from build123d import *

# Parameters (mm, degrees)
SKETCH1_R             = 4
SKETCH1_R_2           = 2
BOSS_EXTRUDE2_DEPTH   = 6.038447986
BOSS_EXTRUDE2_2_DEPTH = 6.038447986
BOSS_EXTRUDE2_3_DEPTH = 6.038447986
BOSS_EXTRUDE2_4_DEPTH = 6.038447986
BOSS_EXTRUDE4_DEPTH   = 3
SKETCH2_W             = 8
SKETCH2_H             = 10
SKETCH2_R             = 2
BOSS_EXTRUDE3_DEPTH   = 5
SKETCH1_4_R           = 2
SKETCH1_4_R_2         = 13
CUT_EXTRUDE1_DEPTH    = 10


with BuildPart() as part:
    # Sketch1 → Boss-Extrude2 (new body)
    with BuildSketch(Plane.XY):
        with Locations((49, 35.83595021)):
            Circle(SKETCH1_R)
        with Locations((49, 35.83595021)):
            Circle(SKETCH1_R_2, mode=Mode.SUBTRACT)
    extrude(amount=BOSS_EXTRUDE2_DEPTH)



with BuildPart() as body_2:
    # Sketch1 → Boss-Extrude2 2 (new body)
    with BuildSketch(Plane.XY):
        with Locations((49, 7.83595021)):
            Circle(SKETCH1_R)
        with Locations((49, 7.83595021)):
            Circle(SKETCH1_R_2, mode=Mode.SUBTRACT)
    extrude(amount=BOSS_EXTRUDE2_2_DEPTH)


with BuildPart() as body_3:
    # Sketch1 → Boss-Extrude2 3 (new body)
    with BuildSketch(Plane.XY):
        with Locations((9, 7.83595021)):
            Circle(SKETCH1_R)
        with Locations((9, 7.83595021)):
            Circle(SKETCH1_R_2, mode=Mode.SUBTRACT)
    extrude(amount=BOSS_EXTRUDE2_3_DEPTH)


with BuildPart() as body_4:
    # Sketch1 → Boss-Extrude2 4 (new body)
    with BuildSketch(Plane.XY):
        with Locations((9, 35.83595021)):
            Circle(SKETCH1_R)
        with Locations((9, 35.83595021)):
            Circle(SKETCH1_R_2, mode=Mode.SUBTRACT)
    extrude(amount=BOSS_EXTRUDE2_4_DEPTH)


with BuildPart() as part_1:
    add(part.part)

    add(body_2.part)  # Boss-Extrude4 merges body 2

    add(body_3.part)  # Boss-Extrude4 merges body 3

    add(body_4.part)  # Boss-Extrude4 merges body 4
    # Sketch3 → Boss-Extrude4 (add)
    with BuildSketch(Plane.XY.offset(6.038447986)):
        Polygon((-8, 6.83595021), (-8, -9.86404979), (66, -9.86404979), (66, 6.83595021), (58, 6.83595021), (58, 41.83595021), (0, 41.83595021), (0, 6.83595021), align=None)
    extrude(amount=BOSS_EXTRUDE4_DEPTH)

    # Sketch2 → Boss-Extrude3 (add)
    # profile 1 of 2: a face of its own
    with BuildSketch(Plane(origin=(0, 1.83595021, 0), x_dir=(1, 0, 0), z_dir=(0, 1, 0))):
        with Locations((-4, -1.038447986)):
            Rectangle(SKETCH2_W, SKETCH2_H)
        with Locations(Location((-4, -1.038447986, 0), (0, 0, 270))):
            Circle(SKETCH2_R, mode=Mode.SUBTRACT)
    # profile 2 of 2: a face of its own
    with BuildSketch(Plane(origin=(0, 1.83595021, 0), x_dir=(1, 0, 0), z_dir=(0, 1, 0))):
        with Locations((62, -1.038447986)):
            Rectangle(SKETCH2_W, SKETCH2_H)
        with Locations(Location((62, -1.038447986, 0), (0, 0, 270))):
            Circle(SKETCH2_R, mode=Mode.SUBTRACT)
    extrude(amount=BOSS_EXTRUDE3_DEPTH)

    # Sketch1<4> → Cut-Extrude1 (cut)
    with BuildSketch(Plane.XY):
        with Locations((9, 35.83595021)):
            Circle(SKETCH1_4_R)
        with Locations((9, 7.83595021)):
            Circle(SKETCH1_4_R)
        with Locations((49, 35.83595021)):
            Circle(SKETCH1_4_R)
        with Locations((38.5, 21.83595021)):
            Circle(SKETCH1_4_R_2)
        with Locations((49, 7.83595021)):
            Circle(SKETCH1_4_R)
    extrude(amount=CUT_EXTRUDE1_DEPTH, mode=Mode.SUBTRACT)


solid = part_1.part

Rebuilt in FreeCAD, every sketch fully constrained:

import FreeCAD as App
import Part
import Sketcher

V = App.Vector

doc = App.newDocument("Part")
body = doc.addObject("PartDesign::Body", "Body")

# Sketch on XY plane
sketch1 = body.newObject("Sketcher::SketchObject", "Sketch")
sketch1.AttachmentSupport = (doc.getObject("XY_Plane"), [""])
sketch1.MapMode = "FlatFace"
sketch1.addGeometry(Part.Circle(V(49, 35.8, 0), V(0, 0, 1), 4), False)
sketch1.addGeometry(Part.Circle(V(49, 35.8, 0), V(0, 0, 1), 2), False)
sketch1.addConstraint(Sketcher.Constraint("Coincident", 1, 3, 0, 3))
sketch1.addConstraint(Sketcher.Constraint("Diameter", 0, 8.0))
sketch1.addConstraint(Sketcher.Constraint("Diameter", 1, 4.0))
sketch1.addConstraint(Sketcher.Constraint("DistanceX", -1, 1, 0, 3, 49.0))
sketch1.addConstraint(Sketcher.Constraint("DistanceY", -1, 1, 0, 3, 35.83595))
pad1 = body.newObject("PartDesign::Pad", "Pad")
pad1.Profile = sketch1
pad1.Length = 6.038448
body2 = doc.addObject("PartDesign::Body", "Body001")

# Sketch on XY plane
sketch2 = body2.newObject("Sketcher::SketchObject", "Sketch001")
sketch2.AttachmentSupport = (doc.getObject("XY_Plane001"), [""])
sketch2.MapMode = "FlatFace"
sketch2.addGeometry(Part.Circle(V(49, 7.8, 0), V(0, 0, 1), 4), False)
sketch2.addGeometry(Part.Circle(V(49, 7.8, 0), V(0, 0, 1), 2), False)
sketch2.addConstraint(Sketcher.Constraint("Coincident", 1, 3, 0, 3))
sketch2.addConstraint(Sketcher.Constraint("Diameter", 0, 8.0))
sketch2.addConstraint(Sketcher.Constraint("Diameter", 1, 4.0))
sketch2.addConstraint(Sketcher.Constraint("DistanceX", -1, 1, 0, 3, 49.0))
sketch2.addConstraint(Sketcher.Constraint("DistanceY", -1, 1, 0, 3, 7.83595))
pad2 = body2.newObject("PartDesign::Pad", "Pad001")
pad2.Profile = sketch2
pad2.Length = 6.038448
body3 = doc.addObject("PartDesign::Body", "Body002")

# Sketch on XY plane
sketch3 = body3.newObject("Sketcher::SketchObject", "Sketch002")
sketch3.AttachmentSupport = (doc.getObject("XY_Plane002"), [""])
sketch3.MapMode = "FlatFace"
sketch3.addGeometry(Part.Circle(V(9, 7.8, 0), V(0, 0, 1), 4), False)
sketch3.addGeometry(Part.Circle(V(9, 7.8, 0), V(0, 0, 1), 2), False)
sketch3.addConstraint(Sketcher.Constraint("Coincident", 1, 3, 0, 3))
sketch3.addConstraint(Sketcher.Constraint("Diameter", 0, 8.0))
sketch3.addConstraint(Sketcher.Constraint("Diameter", 1, 4.0))
sketch3.addConstraint(Sketcher.Constraint("DistanceX", -1, 1, 0, 3, 9.0))
sketch3.addConstraint(Sketcher.Constraint("DistanceY", -1, 1, 0, 3, 7.83595))
pad3 = body3.newObject("PartDesign::Pad", "Pad002")
pad3.Profile = sketch3
pad3.Length = 6.038448
body4 = doc.addObject("PartDesign::Body", "Body003")

# Sketch on XY plane
sketch4 = body4.newObject("Sketcher::SketchObject", "Sketch003")
sketch4.AttachmentSupport = (doc.getObject("XY_Plane003"), [""])
sketch4.MapMode = "FlatFace"
sketch4.addGeometry(Part.Circle(V(9, 35.8, 0), V(0, 0, 1), 4), False)
sketch4.addGeometry(Part.Circle(V(9, 35.8, 0), V(0, 0, 1), 2), False)
sketch4.addConstraint(Sketcher.Constraint("Coincident", 1, 3, 0, 3))
sketch4.addConstraint(Sketcher.Constraint("Diameter", 0, 8.0))
sketch4.addConstraint(Sketcher.Constraint("Diameter", 1, 4.0))
sketch4.addConstraint(Sketcher.Constraint("DistanceX", -1, 1, 0, 3, 9.0))
sketch4.addConstraint(Sketcher.Constraint("DistanceY", -1, 1, 0, 3, 35.83595))
pad4 = body4.newObject("PartDesign::Pad", "Pad003")
pad4.Profile = sketch4
pad4.Length = 6.038448
body.AllowCompound = True
doc.recompute()

boolean = body.newObject("PartDesign::Boolean", "Boolean")
boolean.Type = "Fuse"
boolean.addObjects([body2])
doc.recompute()

boolean2 = body.newObject("PartDesign::Boolean", "Boolean001")
boolean2.Type = "Fuse"
boolean2.addObjects([body3])
doc.recompute()

boolean3 = body.newObject("PartDesign::Boolean", "Boolean002")
boolean3.Type = "Fuse"
boolean3.addObjects([body4])

# Sketch on XY plane
sketch5 = body.newObject("Sketcher::SketchObject", "Sketch004")
sketch5.AttachmentSupport = (doc.getObject("XY_Plane"), [""])
sketch5.MapMode = "FlatFace"
sketch5.AttachmentOffset = App.Placement(V(0, 0, 6.038448), App.Rotation())
sketch5.addGeometry(Part.LineSegment(V(-8, 7, 0), V(-8, -10, 0)), False)
sketch5.addGeometry(Part.LineSegment(V(-8, -10, 0), V(66, -10, 0)), False)
sketch5.addGeometry(Part.LineSegment(V(66, -10, 0), V(66, 7, 0)), False)
sketch5.addGeometry(Part.LineSegment(V(66, 7, 0), V(58, 7, 0)), False)
sketch5.addGeometry(Part.LineSegment(V(58, 7, 0), V(58, 42, 0)), False)
sketch5.addGeometry(Part.LineSegment(V(58, 42, 0), V(0, 42, 0)), False)
sketch5.addGeometry(Part.LineSegment(V(0, 42, 0), V(0, 7, 0)), False)
sketch5.addGeometry(Part.LineSegment(V(0, 7, 0), V(-8, 7, 0)), False)
sketch5.addConstraint(Sketcher.Constraint("Coincident", 0, 2, 1, 1))
sketch5.addConstraint(Sketcher.Constraint("Coincident", 1, 2, 2, 1))
sketch5.addConstraint(Sketcher.Constraint("Coincident", 2, 2, 3, 1))
sketch5.addConstraint(Sketcher.Constraint("Coincident", 3, 2, 4, 1))
sketch5.addConstraint(Sketcher.Constraint("Coincident", 4, 2, 5, 1))
sketch5.addConstraint(Sketcher.Constraint("Coincident", 5, 2, 6, 1))
sketch5.addConstraint(Sketcher.Constraint("Coincident", 6, 2, 7, 1))
sketch5.addConstraint(Sketcher.Constraint("Coincident", 7, 2, 0, 1))
sketch5.addConstraint(Sketcher.Constraint("Vertical", 0))
sketch5.addConstraint(Sketcher.Constraint("Horizontal", 1))
sketch5.addConstraint(Sketcher.Constraint("Vertical", 2))
sketch5.addConstraint(Sketcher.Constraint("Horizontal", 3))
sketch5.addConstraint(Sketcher.Constraint("Vertical", 4))
sketch5.addConstraint(Sketcher.Constraint("Horizontal", 5))
sketch5.addConstraint(Sketcher.Constraint("Vertical", 6))
sketch5.addConstraint(Sketcher.Constraint("Horizontal", 7))
sketch5.addConstraint(Sketcher.Constraint("PointOnObject", 5, 2, -2))
sketch5.addConstraint(Sketcher.Constraint("Horizontal", 3, 2, 6, 2))
sketch5.addConstraint(Sketcher.Constraint("Equal", 3, 7))
sketch5.addConstraint(Sketcher.Constraint("DistanceX", 1, 1, 1, 2, 74.0))
sketch5.addConstraint(Sketcher.Constraint("DistanceX", 3, 2, 3, 1, 8.0))
sketch5.addConstraint(Sketcher.Constraint("DistanceY", 4, 1, 4, 2, 35.0))
sketch5.addConstraint(Sketcher.Constraint("DistanceY", 0, 2, 0, 1, 16.7))
sketch5.addConstraint(Sketcher.Constraint("DistanceY", 0, 2, -1, 1, 9.86405))
pad5 = body.newObject("PartDesign::Pad", "Pad004")
pad5.Profile = sketch5
pad5.Length = 3

# Sketch on XZ plane
sketch6 = body.newObject("Sketcher::SketchObject", "Sketch005")
sketch6.AttachmentSupport = (doc.getObject("XZ_Plane"), [""])
sketch6.MapMode = "FlatFace"
sketch6.AttachmentOffset = App.Placement(V(0, 0, -1.83595), App.Rotation())
sketch6.addGeometry(Part.LineSegment(V(-8, -4, 0), V(-8, 6, 0)), False)
sketch6.addGeometry(Part.LineSegment(V(-8, 6, 0), V(0, 6, 0)), False)
sketch6.addGeometry(Part.LineSegment(V(0, 6, 0), V(0, -4, 0)), False)
sketch6.addGeometry(Part.LineSegment(V(0, -4, 0), V(-8, -4, 0)), False)
sketch6.addGeometry(Part.Circle(V(-4, 1, 0), V(0, 0, 1), 2), False)
sketch6.addGeometry(Part.LineSegment(V(58, -4, 0), V(58, 6, 0)), False)
sketch6.addGeometry(Part.LineSegment(V(58, 6, 0), V(66, 6, 0)), False)
sketch6.addGeometry(Part.LineSegment(V(66, 6, 0), V(66, -4, 0)), False)
sketch6.addGeometry(Part.LineSegment(V(66, -4, 0), V(58, -4, 0)), False)
sketch6.addGeometry(Part.Circle(V(62, 1, 0), V(0, 0, 1), 2), False)
sketch6.addConstraint(Sketcher.Constraint("Coincident", 0, 2, 1, 1))
sketch6.addConstraint(Sketcher.Constraint("Coincident", 1, 2, 2, 1))
sketch6.addConstraint(Sketcher.Constraint("Coincident", 2, 2, 3, 1))
sketch6.addConstraint(Sketcher.Constraint("Coincident", 3, 2, 0, 1))
sketch6.addConstraint(Sketcher.Constraint("Coincident", 5, 2, 6, 1))
sketch6.addConstraint(Sketcher.Constraint("Coincident", 6, 2, 7, 1))
sketch6.addConstraint(Sketcher.Constraint("Coincident", 7, 2, 8, 1))
sketch6.addConstraint(Sketcher.Constraint("Coincident", 8, 2, 5, 1))
sketch6.addConstraint(Sketcher.Constraint("Vertical", 0))
sketch6.addConstraint(Sketcher.Constraint("Horizontal", 1))
sketch6.addConstraint(Sketcher.Constraint("Vertical", 2))
sketch6.addConstraint(Sketcher.Constraint("Horizontal", 3))
sketch6.addConstraint(Sketcher.Constraint("Vertical", 5))
sketch6.addConstraint(Sketcher.Constraint("Horizontal", 6))
sketch6.addConstraint(Sketcher.Constraint("Vertical", 7))
sketch6.addConstraint(Sketcher.Constraint("Horizontal", 8))
sketch6.addConstraint(Sketcher.Constraint("Equal", 4, 9))
sketch6.addConstraint(Sketcher.Constraint("PointOnObject", 1, 2, -2))
sketch6.addConstraint(Sketcher.Constraint("Horizontal", 4, 3, 9, 3))
sketch6.addConstraint(Sketcher.Constraint("Horizontal", 1, 2, 5, 2))
sketch6.addConstraint(Sketcher.Constraint("Horizontal", 3, 2, 7, 2))
sketch6.addConstraint(Sketcher.Constraint("Equal", 3, 6))
sketch6.addConstraint(Sketcher.Constraint("Diameter", 4, 4.0))
sketch6.addConstraint(Sketcher.Constraint("DistanceX", 1, 1, 1, 2, 8.0))
sketch6.addConstraint(Sketcher.Constraint("DistanceY", 0, 1, 0, 2, 10.0))
sketch6.addConstraint(Sketcher.Constraint("DistanceX", 4, 3, -1, 1, 4.0))
sketch6.addConstraint(Sketcher.Constraint("DistanceX", -1, 1, 9, 3, 62.0))
sketch6.addConstraint(Sketcher.Constraint("DistanceX", -1, 1, 5, 2, 58.0))
sketch6.addConstraint(Sketcher.Constraint("DistanceY", 4, 3, 0, 2, 5.0))
sketch6.addConstraint(Sketcher.Constraint("DistanceY", -1, 1, 4, 3, 1.038448))
pad6 = body.newObject("PartDesign::Pad", "Pad005")
pad6.Profile = sketch6
pad6.Length = 5
pad6.Reversed = True

# Sketch on XY plane
sketch7 = body.newObject("Sketcher::SketchObject", "Sketch006")
sketch7.AttachmentSupport = (doc.getObject("XY_Plane"), [""])
sketch7.MapMode = "FlatFace"
sketch7.addGeometry(Part.Circle(V(9, 35.8, 0), V(0, 0, 1), 2), False)
sketch7.addGeometry(Part.Circle(V(9, 7.8, 0), V(0, 0, 1), 2), False)
sketch7.addGeometry(Part.Circle(V(49, 35.8, 0), V(0, 0, 1), 2), False)
sketch7.addGeometry(Part.Circle(V(38.5, 21.8, 0), V(0, 0, 1), 13), False)
sketch7.addGeometry(Part.Circle(V(49, 7.8, 0), V(0, 0, 1), 2), False)
sketch7.addConstraint(Sketcher.Constraint("Equal", 0, 1))
sketch7.addConstraint(Sketcher.Constraint("Equal", 1, 2))
sketch7.addConstraint(Sketcher.Constraint("Equal", 2, 4))
sketch7.addConstraint(Sketcher.Constraint("Horizontal", 0, 3, 2, 3))
sketch7.addConstraint(Sketcher.Constraint("Horizontal", 1, 3, 4, 3))
sketch7.addConstraint(Sketcher.Constraint("Vertical", 0, 3, 1, 3))
sketch7.addConstraint(Sketcher.Constraint("Vertical", 2, 3, 4, 3))
sketch7.addConstraint(Sketcher.Constraint("Diameter", 0, 4.0))
sketch7.addConstraint(Sketcher.Constraint("Diameter", 3, 26.0))
sketch7.addConstraint(Sketcher.Constraint("DistanceX", -1, 1, 0, 3, 9.0))
sketch7.addConstraint(Sketcher.Constraint("DistanceX", -1, 1, 2, 3, 49.0))
sketch7.addConstraint(Sketcher.Constraint("DistanceY", 1, 3, 0, 3, 28.0))
sketch7.addConstraint(Sketcher.Constraint("DistanceY", 3, 3, 2, 3, 14.0))
sketch7.addConstraint(Sketcher.Constraint("DistanceX", -1, 1, 3, 3, 38.5))
sketch7.addConstraint(Sketcher.Constraint("DistanceY", -1, 1, 0, 3, 35.83595))
pocket1 = body.newObject("PartDesign::Pocket", "Pocket")
pocket1.Profile = sketch7
pocket1.Length = 10
pocket1.Reversed = True

doc.recompute()
